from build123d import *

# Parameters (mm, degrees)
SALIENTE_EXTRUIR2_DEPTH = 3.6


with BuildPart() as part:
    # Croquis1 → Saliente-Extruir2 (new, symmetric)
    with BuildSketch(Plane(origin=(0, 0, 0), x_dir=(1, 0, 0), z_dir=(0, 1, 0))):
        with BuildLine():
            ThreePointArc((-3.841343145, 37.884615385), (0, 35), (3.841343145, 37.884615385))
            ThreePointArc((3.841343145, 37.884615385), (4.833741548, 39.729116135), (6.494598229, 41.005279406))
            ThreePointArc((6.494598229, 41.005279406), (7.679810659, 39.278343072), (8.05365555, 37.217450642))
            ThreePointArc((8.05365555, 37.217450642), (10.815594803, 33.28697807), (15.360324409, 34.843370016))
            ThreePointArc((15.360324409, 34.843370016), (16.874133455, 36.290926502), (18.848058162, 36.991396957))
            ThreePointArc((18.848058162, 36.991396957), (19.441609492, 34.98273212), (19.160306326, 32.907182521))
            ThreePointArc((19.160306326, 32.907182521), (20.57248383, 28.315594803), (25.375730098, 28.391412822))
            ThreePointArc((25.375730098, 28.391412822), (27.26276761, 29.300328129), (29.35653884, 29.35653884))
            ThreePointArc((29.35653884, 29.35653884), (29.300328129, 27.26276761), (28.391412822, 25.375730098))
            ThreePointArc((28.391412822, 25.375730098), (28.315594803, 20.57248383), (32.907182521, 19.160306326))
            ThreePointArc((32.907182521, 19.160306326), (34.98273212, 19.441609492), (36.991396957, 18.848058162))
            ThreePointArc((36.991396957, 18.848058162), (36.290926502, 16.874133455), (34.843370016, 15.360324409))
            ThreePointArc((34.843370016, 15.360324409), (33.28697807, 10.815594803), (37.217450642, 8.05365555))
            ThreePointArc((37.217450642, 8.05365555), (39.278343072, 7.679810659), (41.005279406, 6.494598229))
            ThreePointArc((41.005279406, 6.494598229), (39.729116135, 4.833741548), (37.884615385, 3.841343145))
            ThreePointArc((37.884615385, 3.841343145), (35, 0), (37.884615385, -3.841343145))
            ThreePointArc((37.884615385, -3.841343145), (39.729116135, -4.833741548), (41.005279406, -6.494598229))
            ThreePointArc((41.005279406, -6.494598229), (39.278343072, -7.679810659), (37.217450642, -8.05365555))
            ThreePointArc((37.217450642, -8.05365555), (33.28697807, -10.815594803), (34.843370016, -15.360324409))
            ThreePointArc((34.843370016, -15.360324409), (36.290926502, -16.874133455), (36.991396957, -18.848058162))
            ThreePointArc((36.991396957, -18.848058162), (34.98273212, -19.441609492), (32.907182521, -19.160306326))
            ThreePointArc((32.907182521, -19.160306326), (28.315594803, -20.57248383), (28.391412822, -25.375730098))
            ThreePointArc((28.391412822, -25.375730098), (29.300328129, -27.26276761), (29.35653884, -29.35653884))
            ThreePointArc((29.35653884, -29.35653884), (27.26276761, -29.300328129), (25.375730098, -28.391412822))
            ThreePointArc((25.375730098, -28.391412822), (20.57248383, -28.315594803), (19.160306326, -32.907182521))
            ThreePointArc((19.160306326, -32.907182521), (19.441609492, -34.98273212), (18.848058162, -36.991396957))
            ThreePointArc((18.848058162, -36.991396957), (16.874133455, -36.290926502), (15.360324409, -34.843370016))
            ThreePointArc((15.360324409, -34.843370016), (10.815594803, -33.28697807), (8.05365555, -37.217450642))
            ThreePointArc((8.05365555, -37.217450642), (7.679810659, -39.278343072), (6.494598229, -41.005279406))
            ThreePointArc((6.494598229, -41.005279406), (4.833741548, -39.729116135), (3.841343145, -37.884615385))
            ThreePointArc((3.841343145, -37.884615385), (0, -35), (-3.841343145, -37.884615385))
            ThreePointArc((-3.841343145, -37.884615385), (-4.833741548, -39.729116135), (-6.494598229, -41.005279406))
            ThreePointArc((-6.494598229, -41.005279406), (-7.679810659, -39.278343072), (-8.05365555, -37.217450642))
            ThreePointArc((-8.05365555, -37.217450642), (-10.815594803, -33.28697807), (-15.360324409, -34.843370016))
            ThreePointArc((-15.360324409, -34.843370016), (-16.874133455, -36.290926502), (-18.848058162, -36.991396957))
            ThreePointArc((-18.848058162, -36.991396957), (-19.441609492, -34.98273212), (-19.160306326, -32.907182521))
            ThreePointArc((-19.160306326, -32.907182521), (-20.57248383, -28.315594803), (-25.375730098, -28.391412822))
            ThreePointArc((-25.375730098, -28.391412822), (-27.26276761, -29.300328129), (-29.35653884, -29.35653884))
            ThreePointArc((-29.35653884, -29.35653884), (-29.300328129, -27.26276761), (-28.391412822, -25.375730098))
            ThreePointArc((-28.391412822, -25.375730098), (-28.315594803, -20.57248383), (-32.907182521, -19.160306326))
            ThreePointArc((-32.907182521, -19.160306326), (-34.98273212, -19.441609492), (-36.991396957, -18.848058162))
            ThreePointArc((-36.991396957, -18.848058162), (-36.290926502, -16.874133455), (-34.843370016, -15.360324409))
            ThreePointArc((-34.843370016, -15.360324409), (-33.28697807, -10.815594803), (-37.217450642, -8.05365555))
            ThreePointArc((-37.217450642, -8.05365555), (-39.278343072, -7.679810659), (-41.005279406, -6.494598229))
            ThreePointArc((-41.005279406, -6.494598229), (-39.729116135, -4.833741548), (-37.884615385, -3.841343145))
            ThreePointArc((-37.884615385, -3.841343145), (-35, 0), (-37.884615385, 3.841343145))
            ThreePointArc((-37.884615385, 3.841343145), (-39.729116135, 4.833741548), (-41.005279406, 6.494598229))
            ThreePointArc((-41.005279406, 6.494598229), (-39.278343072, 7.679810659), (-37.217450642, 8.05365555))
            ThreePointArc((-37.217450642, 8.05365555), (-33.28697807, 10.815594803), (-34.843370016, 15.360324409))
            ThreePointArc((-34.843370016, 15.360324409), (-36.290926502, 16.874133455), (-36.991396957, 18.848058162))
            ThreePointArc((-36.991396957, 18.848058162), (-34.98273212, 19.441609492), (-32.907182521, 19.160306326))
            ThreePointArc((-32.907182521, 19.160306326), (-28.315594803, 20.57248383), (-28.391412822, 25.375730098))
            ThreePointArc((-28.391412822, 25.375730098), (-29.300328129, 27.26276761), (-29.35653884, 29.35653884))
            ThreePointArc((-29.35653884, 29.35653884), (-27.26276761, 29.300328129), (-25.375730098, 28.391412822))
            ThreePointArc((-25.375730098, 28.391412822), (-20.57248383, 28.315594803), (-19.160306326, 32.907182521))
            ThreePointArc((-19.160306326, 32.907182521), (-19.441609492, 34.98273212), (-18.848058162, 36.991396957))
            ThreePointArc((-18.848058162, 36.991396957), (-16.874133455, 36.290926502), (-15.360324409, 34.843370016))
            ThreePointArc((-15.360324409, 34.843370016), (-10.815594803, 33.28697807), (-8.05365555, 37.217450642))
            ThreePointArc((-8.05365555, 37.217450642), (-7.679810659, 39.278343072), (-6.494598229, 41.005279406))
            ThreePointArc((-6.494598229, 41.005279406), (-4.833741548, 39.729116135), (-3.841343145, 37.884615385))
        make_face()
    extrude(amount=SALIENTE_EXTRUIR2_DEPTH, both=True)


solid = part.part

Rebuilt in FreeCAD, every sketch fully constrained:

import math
import FreeCAD as App
import Part
import Sketcher
from FreeCAD import Vector

doc = App.newDocument("Part")
params = doc.addObject("Spreadsheet::Sheet", "Params")
for row, (alias, value) in enumerate([
    ("sketch1_radius", "4 mm"),
    ("sketch1_radius2", "5 mm"),
    ("pad1_length", "7.2 mm"),
], start=1):
    params.set(f"A{row}", alias)
    params.set(f"B{row}", "=" + value)
    params.setAlias(f"B{row}", alias)

body = doc.addObject("PartDesign::Body", "Body")

# Sketch on XZ plane
sketch1 = body.newObject("Sketcher::SketchObject", "Sketch")
sketch1.AttachmentSupport = (doc.getObject("XZ_Plane"), [""])
sketch1.MapMode = "FlatFace"
sketch1.addGeometry([
    Part.ArcOfCircle(Part.Circle(Vector(0, -39, 0), Vector(0, 0, 1), 4), math.radians(16.191352), math.radians(163.808648)),  # 0
    Part.ArcOfCircle(Part.Circle(Vector(-8.643022, -36.490385, 0), Vector(0, 0, 1), 5), math.radians(-64.552444), math.radians(-16.191352)),  # 1
    Part.ArcOfCircle(Part.Circle(Vector(-3.056147, -37.375259, 0), Vector(0, 0, 1), 5), math.radians(178.191352), math.radians(226.552443)),  # 2
    Part.ArcOfCircle(Part.Circle(Vector(-12.051663, -37.091204, 0), Vector(0, 0, 1), 4), math.radians(-1.808648), math.radians(145.808648)),  # 3
    Part.ArcOfCircle(Part.Circle(Vector(-19.496151, -32.033577, 0), Vector(0, 0, 1), 5), math.radians(-82.552444), math.radians(-34.191352)),  # 4
    Part.ArcOfCircle(Part.Circle(Vector(-14.456158, -34.601582, 0), Vector(0, 0, 1), 5), math.radians(160.191352), math.radians(208.552444)),  # 5
    Part.ArcOfCircle(Part.Circle(Vector(-22.923625, -31.551663, 0), Vector(0, 0, 1), 4), math.radians(-19.808648), math.radians(127.808648)),  # 6
    Part.ArcOfCircle(Part.Circle(Vector(-28.440862, -24.4411, 0), Vector(0, 0, 1), 5), math.radians(-100.552443), math.radians(-52.191352)),  # 7
    Part.ArcOfCircle(Part.Circle(Vector(-24.4411, -28.440862, 0), Vector(0, 0, 1), 5), math.radians(142.191352), math.radians(190.552443)),  # 8
    Part.ArcOfCircle(Part.Circle(Vector(-31.551663, -22.923625, 0), Vector(0, 0, 1), 4), math.radians(-37.808648), math.radians(109.808648)),  # 9
    Part.ArcOfCircle(Part.Circle(Vector(-34.601582, -14.456158, 0), Vector(0, 0, 1), 5), math.radians(-118.552444), math.radians(-70.191352)),  # 10
    Part.ArcOfCircle(Part.Circle(Vector(-32.033577, -19.496151, 0), Vector(0, 0, 1), 5), math.radians(124.191352), math.radians(172.552444)),  # 11
    Part.ArcOfCircle(Part.Circle(Vector(-37.091204, -12.051663, 0), Vector(0, 0, 1), 4), math.radians(-55.808648), math.radians(91.808648)),  # 12
    Part.ArcOfCircle(Part.Circle(Vector(-37.375259, -3.056147, 0), Vector(0, 0, 1), 5), math.radians(-136.552443), math.radians(-88.191352)),  # 13
    Part.ArcOfCircle(Part.Circle(Vector(-36.490385, -8.643022, 0), Vector(0, 0, 1), 5), math.radians(106.191352), math.radians(154.552444)),  # 14
    Part.ArcOfCircle(Part.Circle(Vector(-39, 0, 0), Vector(0, 0, 1), 4), math.radians(-73.808648), math.radians(73.808648)),  # 15
    Part.ArcOfCircle(Part.Circle(Vector(-36.490385, 8.643022, 0), Vector(0, 0, 1), 5), math.radians(-154.552444), math.radians(-106.191352)),  # 16
    Part.ArcOfCircle(Part.Circle(Vector(-37.375259, 3.056147, 0), Vector(0, 0, 1), 5), math.radians(88.191352), math.radians(136.552443)),  # 17
    Part.ArcOfCircle(Part.Circle(Vector(-37.091204, 12.051663, 0), Vector(0, 0, 1), 4), math.radians(-91.808648), math.radians(55.808648)),  # 18
    Part.ArcOfCircle(Part.Circle(Vector(-32.033577, 19.496151, 0), Vector(0, 0, 1), 5), math.radians(-172.552444), math.radians(-124.191352)),  # 19
    Part.ArcOfCircle(Part.Circle(Vector(-34.601582, 14.456158, 0), Vector(0, 0, 1), 5), math.radians(70.191352), math.radians(118.552444)),  # 20
    Part.ArcOfCircle(Part.Circle(Vector(-31.551663, 22.923625, 0), Vector(0, 0, 1), 4), math.radians(-109.808648), math.radians(37.808648)),  # 21
    Part.ArcOfCircle(Part.Circle(Vector(-24.4411, 28.440862, 0), Vector(0, 0, 1), 5), math.radians(169.447557), math.radians(217.808648)),  # 22
    Part.ArcOfCircle(Part.Circle(Vector(-28.440862, 24.4411, 0), Vector(0, 0, 1), 5), math.radians(52.191352), math.radians(100.552443)),  # 23
    Part.ArcOfCircle(Part.Circle(Vector(-22.923625, 31.551663, 0), Vector(0, 0, 1), 4), math.radians(-127.808648), math.radians(19.808648)),  # 24
    Part.ArcOfCircle(Part.Circle(Vector(-14.456158, 34.601582, 0), Vector(0, 0, 1), 5), math.radians(151.447556), math.radians(199.808648)),  # 25
    Part.ArcOfCircle(Part.Circle(Vector(-19.496151, 32.033577, 0), Vector(0, 0, 1), 5), math.radians(34.191352), math.radians(82.552444)),  # 26
    Part.ArcOfCircle(Part.Circle(Vector(-12.051663, 37.091204, 0), Vector(0, 0, 1), 4), math.radians(-145.808648), math.radians(1.808648)),  # 27
    Part.ArcOfCircle(Part.Circle(Vector(-3.056147, 37.375259, 0), Vector(0, 0, 1), 5), math.radians(133.447557), math.radians(181.808648)),  # 28
    Part.ArcOfCircle(Part.Circle(Vector(-8.643022, 36.490385, 0), Vector(0, 0, 1), 5), math.radians(16.191352), math.radians(64.552444)),  # 29
    Part.ArcOfCircle(Part.Circle(Vector(0, 39, 0), Vector(0, 0, 1), 4), math.radians(-163.808648), math.radians(-16.191352)),  # 30
    Part.ArcOfCircle(Part.Circle(Vector(8.643022, 36.490385, 0), Vector(0, 0, 1), 5), math.radians(115.447556), math.radians(163.808648)),  # 31
    Part.ArcOfCircle(Part.Circle(Vector(3.056147, 37.375259, 0), Vector(0, 0, 1), 5), math.radians(-1.808648), math.radians(46.552443)),  # 32
    Part.ArcOfCircle(Part.Circle(Vector(12.051663, 37.091204, 0), Vector(0, 0, 1), 4), math.radians(178.191352), math.radians(325.808648)),  # 33
    Part.ArcOfCircle(Part.Circle(Vector(19.496151, 32.033577, 0), Vector(0, 0, 1), 5), math.radians(97.447556), math.radians(145.808648)),  # 34
    Part.ArcOfCircle(Part.Circle(Vector(14.456158, 34.601582, 0), Vector(0, 0, 1), 5), math.radians(-19.808648), math.radians(28.552444)),  # 35
    Part.ArcOfCircle(Part.Circle(Vector(22.923625, 31.551663, 0), Vector(0, 0, 1), 4), math.radians(160.191352), math.radians(307.808648)),  # 36
    Part.ArcOfCircle(Part.Circle(Vector(28.440862, 24.4411, 0), Vector(0, 0, 1), 5), math.radians(79.447557), math.radians(127.808648)),  # 37
    Part.ArcOfCircle(Part.Circle(Vector(24.4411, 28.440862, 0), Vector(0, 0, 1), 5), math.radians(-37.808648), math.radians(10.552443)),  # 38
    Part.ArcOfCircle(Part.Circle(Vector(31.551663, 22.923625, 0), Vector(0, 0, 1), 4), math.radians(142.191352), math.radians(289.808648)),  # 39
    Part.ArcOfCircle(Part.Circle(Vector(34.601582, 14.456158, 0), Vector(0, 0, 1), 5), math.radians(61.447556), math.radians(109.808648)),  # 40
    Part.ArcOfCircle(Part.Circle(Vector(32.033577, 19.496151, 0), Vector(0, 0, 1), 5), math.radians(-55.808648), math.radians(-7.447556)),  # 41
    Part.ArcOfCircle(Part.Circle(Vector(37.091204, 12.051663, 0), Vector(0, 0, 1), 4), math.radians(124.191352), math.radians(271.808648)),  # 42
    Part.ArcOfCircle(Part.Circle(Vector(37.375259, 3.056147, 0), Vector(0, 0, 1), 5), math.radians(43.447557), math.radians(91.808648)),  # 43
    Part.ArcOfCircle(Part.Circle(Vector(36.490385, 8.643022, 0), Vector(0, 0, 1), 5), math.radians(-73.808648), math.radians(-25.447556)),  # 44
    Part.ArcOfCircle(Part.Circle(Vector(39, 0, 0), Vector(0, 0, 1), 4), math.radians(106.191352), math.radians(253.808648)),  # 45
    Part.ArcOfCircle(Part.Circle(Vector(36.490385, -8.643022, 0), Vector(0, 0, 1), 5), math.radians(25.447556), math.radians(73.808648)),  # 46
    Part.ArcOfCircle(Part.Circle(Vector(37.375259, -3.056147, 0), Vector(0, 0, 1), 5), math.radians(-91.808648), math.radians(-43.447557)),  # 47
    Part.ArcOfCircle(Part.Circle(Vector(37.091204, -12.051663, 0), Vector(0, 0, 1), 4), math.radians(88.191352), math.radians(235.808648)),  # 48
    Part.ArcOfCircle(Part.Circle(Vector(32.033577, -19.496151, 0), Vector(0, 0, 1), 5), math.radians(7.447556), math.radians(55.808648)),  # 49
    Part.ArcOfCircle(Part.Circle(Vector(34.601582, -14.456158, 0), Vector(0, 0, 1), 5), math.radians(-109.808648), math.radians(-61.447556)),  # 50
    Part.ArcOfCircle(Part.Circle(Vector(31.551663, -22.923625, 0), Vector(0, 0, 1), 4), math.radians(70.191352), math.radians(217.808648)),  # 51
    Part.ArcOfCircle(Part.Circle(Vector(24.4411, -28.440862, 0), Vector(0, 0, 1), 5), math.radians(-10.552443), math.radians(37.808648)),  # 52
    Part.ArcOfCircle(Part.Circle(Vector(28.440862, -24.4411, 0), Vector(0, 0, 1), 5), math.radians(-127.808648), math.radians(-79.447557)),  # 53
    Part.ArcOfCircle(Part.Circle(Vector(22.923625, -31.551663, 0), Vector(0, 0, 1), 4), math.radians(52.191352), math.radians(199.808648)),  # 54
    Part.ArcOfCircle(Part.Circle(Vector(14.456158, -34.601582, 0), Vector(0, 0, 1), 5), math.radians(-28.552444), math.radians(19.808648)),  # 55
    Part.ArcOfCircle(Part.Circle(Vector(19.496151, -32.033577, 0), Vector(0, 0, 1), 5), math.radians(-145.808648), math.radians(-97.447556)),  # 56
    Part.ArcOfCircle(Part.Circle(Vector(12.051663, -37.091204, 0), Vector(0, 0, 1), 4), math.radians(34.191352), math.radians(181.808648)),  # 57
    Part.ArcOfCircle(Part.Circle(Vector(3.056147, -37.375259, 0), Vector(0, 0, 1), 5), math.radians(-46.552443), math.radians(1.808648)),  # 58
    Part.ArcOfCircle(Part.Circle(Vector(8.643022, -36.490385, 0), Vector(0, 0, 1), 5), math.radians(-163.808648), math.radians(-115.447556)),  # 59
], False)
sketch1.addConstraint([
    Sketcher.Constraint("Tangent", 0, 2, 1, 2),
    Sketcher.Constraint("Coincident", 1, 1, 2, 2),
    Sketcher.Constraint("Tangent", 2, 1, 3, 1),
    Sketcher.Constraint("Tangent", 3, 2, 4, 2),
    Sketcher.Constraint("Coincident", 4, 1, 5, 2),
    Sketcher.Constraint("Tangent", 5, 1, 6, 1),
    Sketcher.Constraint("Tangent", 6, 2, 7, 2),
    Sketcher.Constraint("Coincident", 7, 1, 8, 2),
    Sketcher.Constraint("Tangent", 8, 1, 9, 1),
    Sketcher.Constraint("Tangent", 9, 2, 10, 2),
    Sketcher.Constraint("Coincident", 10, 1, 11, 2),
    Sketcher.Constraint("Tangent", 11, 1, 12, 1),
    Sketcher.Constraint("Tangent", 12, 2, 13, 2),
    Sketcher.Constraint("Coincident", 13, 1, 14, 2),
    Sketcher.Constraint("Tangent", 14, 1, 15, 1),
    Sketcher.Constraint("Tangent", 15, 2, 16, 2),
    Sketcher.Constraint("Coincident", 16, 1, 17, 2),
    Sketcher.Constraint("Tangent", 17, 1, 18, 1),
    Sketcher.Constraint("Tangent", 18, 2, 19, 2),
    Sketcher.Constraint("Coincident", 19, 1, 20, 2),
    Sketcher.Constraint("Tangent", 20, 1, 21, 1),
    Sketcher.Constraint("Tangent", 21, 2, 22, 2),
    Sketcher.Constraint("Coincident", 22, 1, 23, 2),
    Sketcher.Constraint("Tangent", 23, 1, 24, 1),
    Sketcher.Constraint("Tangent", 24, 2, 25, 2),
    Sketcher.Constraint("Coincident", 25, 1, 26, 2),
    Sketcher.Constraint("Tangent", 26, 1, 27, 1),
    Sketcher.Constraint("Tangent", 27, 2, 28, 2),
    Sketcher.Constraint("Coincident", 28, 1, 29, 2),
    Sketcher.Constraint("Tangent", 29, 1, 30, 1),
    Sketcher.Constraint("Tangent", 30, 2, 31, 2),
    Sketcher.Constraint("Coincident", 31, 1, 32, 2),
    Sketcher.Constraint("Tangent", 32, 1, 33, 1),
    Sketcher.Constraint("Tangent", 33, 2, 34, 2),
    Sketcher.Constraint("Coincident", 34, 1, 35, 2),
    Sketcher.Constraint("Tangent", 35, 1, 36, 1),
    Sketcher.Constraint("Tangent", 36, 2, 37, 2),
    Sketcher.Constraint("Coincident", 37, 1, 38, 2),
    Sketcher.Constraint("Tangent", 38, 1, 39, 1),
    Sketcher.Constraint("Tangent", 39, 2, 40, 2),
    Sketcher.Constraint("Coincident", 40, 1, 41, 2),
    Sketcher.Constraint("Tangent", 41, 1, 42, 1),
    Sketcher.Constraint("Tangent", 42, 2, 43, 2),
    Sketcher.Constraint("Coincident", 43, 1, 44, 2),
    Sketcher.Constraint("Tangent", 44, 1, 45, 1),
    Sketcher.Constraint("Tangent", 45, 2, 46, 2),
    Sketcher.Constraint("Coincident", 46, 1, 47, 2),
    Sketcher.Constraint("Tangent", 47, 1, 48, 1),
    Sketcher.Constraint("Tangent", 48, 2, 49, 2),
    Sketcher.Constraint("Coincident", 49, 1, 50, 2),
    Sketcher.Constraint("Tangent", 50, 1, 51, 1),
    Sketcher.Constraint("Tangent", 51, 2, 52, 2),
    Sketcher.Constraint("Coincident", 52, 1, 53, 2),
    Sketcher.Constraint("Tangent", 53, 1, 54, 1),
    Sketcher.Constraint("Tangent", 54, 2, 55, 2),
    Sketcher.Constraint("Coincident", 55, 1, 56, 2),
    Sketcher.Constraint("Tangent", 56, 1, 57, 1),
    Sketcher.Constraint("Tangent", 57, 2, 58, 2),
    Sketcher.Constraint("Coincident", 58, 1, 59, 2),
    Sketcher.Constraint("Tangent", 59, 1, 0, 1),
    Sketcher.Constraint("Equal", 1, 2),
    Sketcher.Constraint("Equal", 0, 3),
    Sketcher.Constraint("Equal", 2, 4),
    Sketcher.Constraint("Equal", 4, 5),
    Sketcher.Constraint("Equal", 3, 6),
    Sketcher.Constraint("Equal", 5, 7),
    Sketcher.Constraint("Equal", 7, 8),
    Sketcher.Constraint("Equal", 6, 9),
    Sketcher.Constraint("Equal", 8, 10),
    Sketcher.Constraint("Equal", 10, 11),
    Sketcher.Constraint("Equal", 9, 12),
    Sketcher.Constraint("Equal", 11, 13),
    Sketcher.Constraint("Equal", 13, 14),
    Sketcher.Constraint("Equal", 12, 15),
    Sketcher.Constraint("Equal", 14, 16),
    Sketcher.Constraint("Equal", 16, 17),
    Sketcher.Constraint("Equal", 15, 18),
    Sketcher.Constraint("Equal", 17, 19),
    Sketcher.Constraint("Equal", 19, 20),
    Sketcher.Constraint("Equal", 18, 21),
    Sketcher.Constraint("Equal", 20, 22),
    Sketcher.Constraint("Equal", 22, 23),
    Sketcher.Constraint("Equal", 21, 24),
    Sketcher.Constraint("Equal", 23, 25),
    Sketcher.Constraint("Equal", 25, 26),
    Sketcher.Constraint("Equal", 24, 27),
    Sketcher.Constraint("Equal", 26, 28),
    Sketcher.Constraint("Equal", 28, 29),
    Sketcher.Constraint("Equal", 27, 30),
    Sketcher.Constraint("Equal", 29, 31),
    Sketcher.Constraint("Equal", 31, 32),
    Sketcher.Constraint("Equal", 30, 33),
    Sketcher.Constraint("Equal", 32, 34),
    Sketcher.Constraint("Equal", 34, 35),
    Sketcher.Constraint("Equal", 33, 36),
    Sketcher.Constraint("Equal", 35, 37),
    Sketcher.Constraint("Equal", 37, 38),
    Sketcher.Constraint("Equal", 36, 39),
    Sketcher.Constraint("Equal", 38, 40),
    Sketcher.Constraint("Equal", 40, 41),
    Sketcher.Constraint("Equal", 39, 42),
    Sketcher.Constraint("Equal", 41, 43),
    Sketcher.Constraint("Equal", 43, 44),
    Sketcher.Constraint("Equal", 42, 45),
    Sketcher.Constraint("Equal", 44, 46),
    Sketcher.Constraint("Equal", 46, 47),
    Sketcher.Constraint("Equal", 45, 48),
    Sketcher.Constraint("Equal", 47, 49),
    Sketcher.Constraint("Equal", 49, 50),
    Sketcher.Constraint("Equal", 48, 51),
    Sketcher.Constraint("Equal", 50, 52),
    Sketcher.Constraint("Equal", 52, 53),
    Sketcher.Constraint("Equal", 51, 54),
    Sketcher.Constraint("Equal", 53, 55),
    Sketcher.Constraint("Equal", 55, 56),
    Sketcher.Constraint("Equal", 54, 57),
    Sketcher.Constraint("Equal", 56, 58),
    Sketcher.Constraint("Equal", 58, 59),
    Sketcher.Constraint("Symmetric", 0, 3, 30, 3, -1, 1),
    Sketcher.Constraint("Symmetric", 2, 3, 32, 3, -1, 1),
    Sketcher.Constraint("Symmetric", 4, 3, 34, 3, -1, 1),
    Sketcher.Constraint("Symmetric", 5, 3, 35, 3, -1, 1),
    Sketcher.Constraint("Symmetric", 7, 3, 37, 3, -1, 1),
    Sketcher.Constraint("Symmetric", 8, 3, 38, 3, -1, 1),
    Sketcher.Constraint("Symmetric", 10, 3, 40, 3, -1, 1),
    Sketcher.Constraint("Symmetric", 11, 3, 41, 3, -1, 1),
    Sketcher.Constraint("Symmetric", 13, 3, 43, 3, -1, 1),
    Sketcher.Constraint("Symmetric", 14, 3, 44, 3, -1, 1),
    Sketcher.Constraint("Symmetric", 16, 3, 46, 3, -1, 1),
    Sketcher.Constraint("Symmetric", 17, 3, 47, 3, -1, 1),
    Sketcher.Constraint("Symmetric", 19, 3, 49, 3, -1, 1),
    Sketcher.Constraint("Symmetric", 20, 3, 50, 3, -1, 1),
    Sketcher.Constraint("Symmetric", 22, 3, 52, 3, -1, 1),
    Sketcher.Constraint("Symmetric", 23, 3, 53, 3, -1, 1),
    Sketcher.Constraint("Symmetric", 25, 3, 55, 3, -1, 1),
    Sketcher.Constraint("Symmetric", 26, 3, 56, 3, -1, 1),
    Sketcher.Constraint("Symmetric", 28, 3, 58, 3, -1, 1),
    Sketcher.Constraint("Symmetric", 29, 3, 31, 3, -2),
    Sketcher.Constraint("Symmetric", 28, 3, 32, 3, -2),
    Sketcher.Constraint("Symmetric", 26, 3, 34, 3, -2),
    Sketcher.Constraint("Symmetric", 25, 3, 35, 3, -2),
    Sketcher.Constraint("Symmetric", 23, 3, 37, 3, -2),
    Sketcher.Constraint("Symmetric", 22, 3, 38, 3, -2),
    Sketcher.Constraint("Symmetric", 20, 3, 40, 3, -2),
    Sketcher.Constraint("Symmetric", 19, 3, 41, 3, -2),
    Sketcher.Constraint("Symmetric", 17, 3, 43, 3, -2),
    Sketcher.Constraint("Symmetric", 16, 3, 44, 3, -2),
    Sketcher.Constraint("Horizontal", 1, 3, 59, 3),
    Sketcher.Constraint("Vertical", 1, 3, 29, 3),
    Sketcher.Constraint("Radius", 0, 4.0),
    Sketcher.Constraint("Radius", 1, 5.0),
    Sketcher.Constraint("DistanceY", 0, 3, -1, 1, 39.0),
    Sketcher.Constraint("DistanceX", 15, 3, -1, 1, 39.0),
    Sketcher.Constraint("DistanceY", 7, 3, -1, 1, 24.4411),
    Sketcher.Constraint("DistanceX", 8, 3, -1, 1, 24.4411),
    Sketcher.Constraint("DistanceX", 1, 1, -1, 1, 6.494598),
    Sketcher.Constraint("DistanceY", 13, 1, -1, 1, 6.494598),
    Sketcher.Constraint("DistanceY", 2, 3, -1, 1, 37.375259),
    Sketcher.Constraint("DistanceX", 4, 3, -1, 1, 19.496151),
    Sketcher.Constraint("DistanceX", 5, 3, -1, 1, 14.456158),
    Sketcher.Constraint("DistanceX", 7, 3, -1, 1, 28.440862),
    Sketcher.Constraint("DistanceY", 8, 3, -1, 1, 28.440862),
    Sketcher.Constraint("DistanceY", 10, 3, -1, 1, 14.456158),
    Sketcher.Constraint("DistanceY", 11, 3, -1, 1, 19.496151),
    Sketcher.Constraint("DistanceX", 13, 3, -1, 1, 37.375259),
    Sketcher.Constraint("DistanceY", 1, 1, -1, 1, 41.005279),
    Sketcher.Constraint("DistanceY", 2, 1, -1, 1, 37.217451),
    Sketcher.Constraint("DistanceX", 4, 1, -1, 1, 18.848058),
    Sketcher.Constraint("DistanceY", 8, 1, -1, 1, 25.37573),
    Sketcher.Constraint("DistanceY", 10, 1, -1, 1, 18.848058),
    Sketcher.Constraint("DistanceX", 11, 1, -1, 1, 34.84337),
])
sketch1.setExpression("Constraints[149]", "Params.sketch1_radius")
sketch1.setExpression("Constraints[150]", "Params.sketch1_radius2")
pad1 = body.newObject("PartDesign::Pad", "Pad")
pad1.Profile = sketch1
pad1.setExpression("Length", "Params.pad1_length")
pad1.Midplane = True

doc.recompute()
